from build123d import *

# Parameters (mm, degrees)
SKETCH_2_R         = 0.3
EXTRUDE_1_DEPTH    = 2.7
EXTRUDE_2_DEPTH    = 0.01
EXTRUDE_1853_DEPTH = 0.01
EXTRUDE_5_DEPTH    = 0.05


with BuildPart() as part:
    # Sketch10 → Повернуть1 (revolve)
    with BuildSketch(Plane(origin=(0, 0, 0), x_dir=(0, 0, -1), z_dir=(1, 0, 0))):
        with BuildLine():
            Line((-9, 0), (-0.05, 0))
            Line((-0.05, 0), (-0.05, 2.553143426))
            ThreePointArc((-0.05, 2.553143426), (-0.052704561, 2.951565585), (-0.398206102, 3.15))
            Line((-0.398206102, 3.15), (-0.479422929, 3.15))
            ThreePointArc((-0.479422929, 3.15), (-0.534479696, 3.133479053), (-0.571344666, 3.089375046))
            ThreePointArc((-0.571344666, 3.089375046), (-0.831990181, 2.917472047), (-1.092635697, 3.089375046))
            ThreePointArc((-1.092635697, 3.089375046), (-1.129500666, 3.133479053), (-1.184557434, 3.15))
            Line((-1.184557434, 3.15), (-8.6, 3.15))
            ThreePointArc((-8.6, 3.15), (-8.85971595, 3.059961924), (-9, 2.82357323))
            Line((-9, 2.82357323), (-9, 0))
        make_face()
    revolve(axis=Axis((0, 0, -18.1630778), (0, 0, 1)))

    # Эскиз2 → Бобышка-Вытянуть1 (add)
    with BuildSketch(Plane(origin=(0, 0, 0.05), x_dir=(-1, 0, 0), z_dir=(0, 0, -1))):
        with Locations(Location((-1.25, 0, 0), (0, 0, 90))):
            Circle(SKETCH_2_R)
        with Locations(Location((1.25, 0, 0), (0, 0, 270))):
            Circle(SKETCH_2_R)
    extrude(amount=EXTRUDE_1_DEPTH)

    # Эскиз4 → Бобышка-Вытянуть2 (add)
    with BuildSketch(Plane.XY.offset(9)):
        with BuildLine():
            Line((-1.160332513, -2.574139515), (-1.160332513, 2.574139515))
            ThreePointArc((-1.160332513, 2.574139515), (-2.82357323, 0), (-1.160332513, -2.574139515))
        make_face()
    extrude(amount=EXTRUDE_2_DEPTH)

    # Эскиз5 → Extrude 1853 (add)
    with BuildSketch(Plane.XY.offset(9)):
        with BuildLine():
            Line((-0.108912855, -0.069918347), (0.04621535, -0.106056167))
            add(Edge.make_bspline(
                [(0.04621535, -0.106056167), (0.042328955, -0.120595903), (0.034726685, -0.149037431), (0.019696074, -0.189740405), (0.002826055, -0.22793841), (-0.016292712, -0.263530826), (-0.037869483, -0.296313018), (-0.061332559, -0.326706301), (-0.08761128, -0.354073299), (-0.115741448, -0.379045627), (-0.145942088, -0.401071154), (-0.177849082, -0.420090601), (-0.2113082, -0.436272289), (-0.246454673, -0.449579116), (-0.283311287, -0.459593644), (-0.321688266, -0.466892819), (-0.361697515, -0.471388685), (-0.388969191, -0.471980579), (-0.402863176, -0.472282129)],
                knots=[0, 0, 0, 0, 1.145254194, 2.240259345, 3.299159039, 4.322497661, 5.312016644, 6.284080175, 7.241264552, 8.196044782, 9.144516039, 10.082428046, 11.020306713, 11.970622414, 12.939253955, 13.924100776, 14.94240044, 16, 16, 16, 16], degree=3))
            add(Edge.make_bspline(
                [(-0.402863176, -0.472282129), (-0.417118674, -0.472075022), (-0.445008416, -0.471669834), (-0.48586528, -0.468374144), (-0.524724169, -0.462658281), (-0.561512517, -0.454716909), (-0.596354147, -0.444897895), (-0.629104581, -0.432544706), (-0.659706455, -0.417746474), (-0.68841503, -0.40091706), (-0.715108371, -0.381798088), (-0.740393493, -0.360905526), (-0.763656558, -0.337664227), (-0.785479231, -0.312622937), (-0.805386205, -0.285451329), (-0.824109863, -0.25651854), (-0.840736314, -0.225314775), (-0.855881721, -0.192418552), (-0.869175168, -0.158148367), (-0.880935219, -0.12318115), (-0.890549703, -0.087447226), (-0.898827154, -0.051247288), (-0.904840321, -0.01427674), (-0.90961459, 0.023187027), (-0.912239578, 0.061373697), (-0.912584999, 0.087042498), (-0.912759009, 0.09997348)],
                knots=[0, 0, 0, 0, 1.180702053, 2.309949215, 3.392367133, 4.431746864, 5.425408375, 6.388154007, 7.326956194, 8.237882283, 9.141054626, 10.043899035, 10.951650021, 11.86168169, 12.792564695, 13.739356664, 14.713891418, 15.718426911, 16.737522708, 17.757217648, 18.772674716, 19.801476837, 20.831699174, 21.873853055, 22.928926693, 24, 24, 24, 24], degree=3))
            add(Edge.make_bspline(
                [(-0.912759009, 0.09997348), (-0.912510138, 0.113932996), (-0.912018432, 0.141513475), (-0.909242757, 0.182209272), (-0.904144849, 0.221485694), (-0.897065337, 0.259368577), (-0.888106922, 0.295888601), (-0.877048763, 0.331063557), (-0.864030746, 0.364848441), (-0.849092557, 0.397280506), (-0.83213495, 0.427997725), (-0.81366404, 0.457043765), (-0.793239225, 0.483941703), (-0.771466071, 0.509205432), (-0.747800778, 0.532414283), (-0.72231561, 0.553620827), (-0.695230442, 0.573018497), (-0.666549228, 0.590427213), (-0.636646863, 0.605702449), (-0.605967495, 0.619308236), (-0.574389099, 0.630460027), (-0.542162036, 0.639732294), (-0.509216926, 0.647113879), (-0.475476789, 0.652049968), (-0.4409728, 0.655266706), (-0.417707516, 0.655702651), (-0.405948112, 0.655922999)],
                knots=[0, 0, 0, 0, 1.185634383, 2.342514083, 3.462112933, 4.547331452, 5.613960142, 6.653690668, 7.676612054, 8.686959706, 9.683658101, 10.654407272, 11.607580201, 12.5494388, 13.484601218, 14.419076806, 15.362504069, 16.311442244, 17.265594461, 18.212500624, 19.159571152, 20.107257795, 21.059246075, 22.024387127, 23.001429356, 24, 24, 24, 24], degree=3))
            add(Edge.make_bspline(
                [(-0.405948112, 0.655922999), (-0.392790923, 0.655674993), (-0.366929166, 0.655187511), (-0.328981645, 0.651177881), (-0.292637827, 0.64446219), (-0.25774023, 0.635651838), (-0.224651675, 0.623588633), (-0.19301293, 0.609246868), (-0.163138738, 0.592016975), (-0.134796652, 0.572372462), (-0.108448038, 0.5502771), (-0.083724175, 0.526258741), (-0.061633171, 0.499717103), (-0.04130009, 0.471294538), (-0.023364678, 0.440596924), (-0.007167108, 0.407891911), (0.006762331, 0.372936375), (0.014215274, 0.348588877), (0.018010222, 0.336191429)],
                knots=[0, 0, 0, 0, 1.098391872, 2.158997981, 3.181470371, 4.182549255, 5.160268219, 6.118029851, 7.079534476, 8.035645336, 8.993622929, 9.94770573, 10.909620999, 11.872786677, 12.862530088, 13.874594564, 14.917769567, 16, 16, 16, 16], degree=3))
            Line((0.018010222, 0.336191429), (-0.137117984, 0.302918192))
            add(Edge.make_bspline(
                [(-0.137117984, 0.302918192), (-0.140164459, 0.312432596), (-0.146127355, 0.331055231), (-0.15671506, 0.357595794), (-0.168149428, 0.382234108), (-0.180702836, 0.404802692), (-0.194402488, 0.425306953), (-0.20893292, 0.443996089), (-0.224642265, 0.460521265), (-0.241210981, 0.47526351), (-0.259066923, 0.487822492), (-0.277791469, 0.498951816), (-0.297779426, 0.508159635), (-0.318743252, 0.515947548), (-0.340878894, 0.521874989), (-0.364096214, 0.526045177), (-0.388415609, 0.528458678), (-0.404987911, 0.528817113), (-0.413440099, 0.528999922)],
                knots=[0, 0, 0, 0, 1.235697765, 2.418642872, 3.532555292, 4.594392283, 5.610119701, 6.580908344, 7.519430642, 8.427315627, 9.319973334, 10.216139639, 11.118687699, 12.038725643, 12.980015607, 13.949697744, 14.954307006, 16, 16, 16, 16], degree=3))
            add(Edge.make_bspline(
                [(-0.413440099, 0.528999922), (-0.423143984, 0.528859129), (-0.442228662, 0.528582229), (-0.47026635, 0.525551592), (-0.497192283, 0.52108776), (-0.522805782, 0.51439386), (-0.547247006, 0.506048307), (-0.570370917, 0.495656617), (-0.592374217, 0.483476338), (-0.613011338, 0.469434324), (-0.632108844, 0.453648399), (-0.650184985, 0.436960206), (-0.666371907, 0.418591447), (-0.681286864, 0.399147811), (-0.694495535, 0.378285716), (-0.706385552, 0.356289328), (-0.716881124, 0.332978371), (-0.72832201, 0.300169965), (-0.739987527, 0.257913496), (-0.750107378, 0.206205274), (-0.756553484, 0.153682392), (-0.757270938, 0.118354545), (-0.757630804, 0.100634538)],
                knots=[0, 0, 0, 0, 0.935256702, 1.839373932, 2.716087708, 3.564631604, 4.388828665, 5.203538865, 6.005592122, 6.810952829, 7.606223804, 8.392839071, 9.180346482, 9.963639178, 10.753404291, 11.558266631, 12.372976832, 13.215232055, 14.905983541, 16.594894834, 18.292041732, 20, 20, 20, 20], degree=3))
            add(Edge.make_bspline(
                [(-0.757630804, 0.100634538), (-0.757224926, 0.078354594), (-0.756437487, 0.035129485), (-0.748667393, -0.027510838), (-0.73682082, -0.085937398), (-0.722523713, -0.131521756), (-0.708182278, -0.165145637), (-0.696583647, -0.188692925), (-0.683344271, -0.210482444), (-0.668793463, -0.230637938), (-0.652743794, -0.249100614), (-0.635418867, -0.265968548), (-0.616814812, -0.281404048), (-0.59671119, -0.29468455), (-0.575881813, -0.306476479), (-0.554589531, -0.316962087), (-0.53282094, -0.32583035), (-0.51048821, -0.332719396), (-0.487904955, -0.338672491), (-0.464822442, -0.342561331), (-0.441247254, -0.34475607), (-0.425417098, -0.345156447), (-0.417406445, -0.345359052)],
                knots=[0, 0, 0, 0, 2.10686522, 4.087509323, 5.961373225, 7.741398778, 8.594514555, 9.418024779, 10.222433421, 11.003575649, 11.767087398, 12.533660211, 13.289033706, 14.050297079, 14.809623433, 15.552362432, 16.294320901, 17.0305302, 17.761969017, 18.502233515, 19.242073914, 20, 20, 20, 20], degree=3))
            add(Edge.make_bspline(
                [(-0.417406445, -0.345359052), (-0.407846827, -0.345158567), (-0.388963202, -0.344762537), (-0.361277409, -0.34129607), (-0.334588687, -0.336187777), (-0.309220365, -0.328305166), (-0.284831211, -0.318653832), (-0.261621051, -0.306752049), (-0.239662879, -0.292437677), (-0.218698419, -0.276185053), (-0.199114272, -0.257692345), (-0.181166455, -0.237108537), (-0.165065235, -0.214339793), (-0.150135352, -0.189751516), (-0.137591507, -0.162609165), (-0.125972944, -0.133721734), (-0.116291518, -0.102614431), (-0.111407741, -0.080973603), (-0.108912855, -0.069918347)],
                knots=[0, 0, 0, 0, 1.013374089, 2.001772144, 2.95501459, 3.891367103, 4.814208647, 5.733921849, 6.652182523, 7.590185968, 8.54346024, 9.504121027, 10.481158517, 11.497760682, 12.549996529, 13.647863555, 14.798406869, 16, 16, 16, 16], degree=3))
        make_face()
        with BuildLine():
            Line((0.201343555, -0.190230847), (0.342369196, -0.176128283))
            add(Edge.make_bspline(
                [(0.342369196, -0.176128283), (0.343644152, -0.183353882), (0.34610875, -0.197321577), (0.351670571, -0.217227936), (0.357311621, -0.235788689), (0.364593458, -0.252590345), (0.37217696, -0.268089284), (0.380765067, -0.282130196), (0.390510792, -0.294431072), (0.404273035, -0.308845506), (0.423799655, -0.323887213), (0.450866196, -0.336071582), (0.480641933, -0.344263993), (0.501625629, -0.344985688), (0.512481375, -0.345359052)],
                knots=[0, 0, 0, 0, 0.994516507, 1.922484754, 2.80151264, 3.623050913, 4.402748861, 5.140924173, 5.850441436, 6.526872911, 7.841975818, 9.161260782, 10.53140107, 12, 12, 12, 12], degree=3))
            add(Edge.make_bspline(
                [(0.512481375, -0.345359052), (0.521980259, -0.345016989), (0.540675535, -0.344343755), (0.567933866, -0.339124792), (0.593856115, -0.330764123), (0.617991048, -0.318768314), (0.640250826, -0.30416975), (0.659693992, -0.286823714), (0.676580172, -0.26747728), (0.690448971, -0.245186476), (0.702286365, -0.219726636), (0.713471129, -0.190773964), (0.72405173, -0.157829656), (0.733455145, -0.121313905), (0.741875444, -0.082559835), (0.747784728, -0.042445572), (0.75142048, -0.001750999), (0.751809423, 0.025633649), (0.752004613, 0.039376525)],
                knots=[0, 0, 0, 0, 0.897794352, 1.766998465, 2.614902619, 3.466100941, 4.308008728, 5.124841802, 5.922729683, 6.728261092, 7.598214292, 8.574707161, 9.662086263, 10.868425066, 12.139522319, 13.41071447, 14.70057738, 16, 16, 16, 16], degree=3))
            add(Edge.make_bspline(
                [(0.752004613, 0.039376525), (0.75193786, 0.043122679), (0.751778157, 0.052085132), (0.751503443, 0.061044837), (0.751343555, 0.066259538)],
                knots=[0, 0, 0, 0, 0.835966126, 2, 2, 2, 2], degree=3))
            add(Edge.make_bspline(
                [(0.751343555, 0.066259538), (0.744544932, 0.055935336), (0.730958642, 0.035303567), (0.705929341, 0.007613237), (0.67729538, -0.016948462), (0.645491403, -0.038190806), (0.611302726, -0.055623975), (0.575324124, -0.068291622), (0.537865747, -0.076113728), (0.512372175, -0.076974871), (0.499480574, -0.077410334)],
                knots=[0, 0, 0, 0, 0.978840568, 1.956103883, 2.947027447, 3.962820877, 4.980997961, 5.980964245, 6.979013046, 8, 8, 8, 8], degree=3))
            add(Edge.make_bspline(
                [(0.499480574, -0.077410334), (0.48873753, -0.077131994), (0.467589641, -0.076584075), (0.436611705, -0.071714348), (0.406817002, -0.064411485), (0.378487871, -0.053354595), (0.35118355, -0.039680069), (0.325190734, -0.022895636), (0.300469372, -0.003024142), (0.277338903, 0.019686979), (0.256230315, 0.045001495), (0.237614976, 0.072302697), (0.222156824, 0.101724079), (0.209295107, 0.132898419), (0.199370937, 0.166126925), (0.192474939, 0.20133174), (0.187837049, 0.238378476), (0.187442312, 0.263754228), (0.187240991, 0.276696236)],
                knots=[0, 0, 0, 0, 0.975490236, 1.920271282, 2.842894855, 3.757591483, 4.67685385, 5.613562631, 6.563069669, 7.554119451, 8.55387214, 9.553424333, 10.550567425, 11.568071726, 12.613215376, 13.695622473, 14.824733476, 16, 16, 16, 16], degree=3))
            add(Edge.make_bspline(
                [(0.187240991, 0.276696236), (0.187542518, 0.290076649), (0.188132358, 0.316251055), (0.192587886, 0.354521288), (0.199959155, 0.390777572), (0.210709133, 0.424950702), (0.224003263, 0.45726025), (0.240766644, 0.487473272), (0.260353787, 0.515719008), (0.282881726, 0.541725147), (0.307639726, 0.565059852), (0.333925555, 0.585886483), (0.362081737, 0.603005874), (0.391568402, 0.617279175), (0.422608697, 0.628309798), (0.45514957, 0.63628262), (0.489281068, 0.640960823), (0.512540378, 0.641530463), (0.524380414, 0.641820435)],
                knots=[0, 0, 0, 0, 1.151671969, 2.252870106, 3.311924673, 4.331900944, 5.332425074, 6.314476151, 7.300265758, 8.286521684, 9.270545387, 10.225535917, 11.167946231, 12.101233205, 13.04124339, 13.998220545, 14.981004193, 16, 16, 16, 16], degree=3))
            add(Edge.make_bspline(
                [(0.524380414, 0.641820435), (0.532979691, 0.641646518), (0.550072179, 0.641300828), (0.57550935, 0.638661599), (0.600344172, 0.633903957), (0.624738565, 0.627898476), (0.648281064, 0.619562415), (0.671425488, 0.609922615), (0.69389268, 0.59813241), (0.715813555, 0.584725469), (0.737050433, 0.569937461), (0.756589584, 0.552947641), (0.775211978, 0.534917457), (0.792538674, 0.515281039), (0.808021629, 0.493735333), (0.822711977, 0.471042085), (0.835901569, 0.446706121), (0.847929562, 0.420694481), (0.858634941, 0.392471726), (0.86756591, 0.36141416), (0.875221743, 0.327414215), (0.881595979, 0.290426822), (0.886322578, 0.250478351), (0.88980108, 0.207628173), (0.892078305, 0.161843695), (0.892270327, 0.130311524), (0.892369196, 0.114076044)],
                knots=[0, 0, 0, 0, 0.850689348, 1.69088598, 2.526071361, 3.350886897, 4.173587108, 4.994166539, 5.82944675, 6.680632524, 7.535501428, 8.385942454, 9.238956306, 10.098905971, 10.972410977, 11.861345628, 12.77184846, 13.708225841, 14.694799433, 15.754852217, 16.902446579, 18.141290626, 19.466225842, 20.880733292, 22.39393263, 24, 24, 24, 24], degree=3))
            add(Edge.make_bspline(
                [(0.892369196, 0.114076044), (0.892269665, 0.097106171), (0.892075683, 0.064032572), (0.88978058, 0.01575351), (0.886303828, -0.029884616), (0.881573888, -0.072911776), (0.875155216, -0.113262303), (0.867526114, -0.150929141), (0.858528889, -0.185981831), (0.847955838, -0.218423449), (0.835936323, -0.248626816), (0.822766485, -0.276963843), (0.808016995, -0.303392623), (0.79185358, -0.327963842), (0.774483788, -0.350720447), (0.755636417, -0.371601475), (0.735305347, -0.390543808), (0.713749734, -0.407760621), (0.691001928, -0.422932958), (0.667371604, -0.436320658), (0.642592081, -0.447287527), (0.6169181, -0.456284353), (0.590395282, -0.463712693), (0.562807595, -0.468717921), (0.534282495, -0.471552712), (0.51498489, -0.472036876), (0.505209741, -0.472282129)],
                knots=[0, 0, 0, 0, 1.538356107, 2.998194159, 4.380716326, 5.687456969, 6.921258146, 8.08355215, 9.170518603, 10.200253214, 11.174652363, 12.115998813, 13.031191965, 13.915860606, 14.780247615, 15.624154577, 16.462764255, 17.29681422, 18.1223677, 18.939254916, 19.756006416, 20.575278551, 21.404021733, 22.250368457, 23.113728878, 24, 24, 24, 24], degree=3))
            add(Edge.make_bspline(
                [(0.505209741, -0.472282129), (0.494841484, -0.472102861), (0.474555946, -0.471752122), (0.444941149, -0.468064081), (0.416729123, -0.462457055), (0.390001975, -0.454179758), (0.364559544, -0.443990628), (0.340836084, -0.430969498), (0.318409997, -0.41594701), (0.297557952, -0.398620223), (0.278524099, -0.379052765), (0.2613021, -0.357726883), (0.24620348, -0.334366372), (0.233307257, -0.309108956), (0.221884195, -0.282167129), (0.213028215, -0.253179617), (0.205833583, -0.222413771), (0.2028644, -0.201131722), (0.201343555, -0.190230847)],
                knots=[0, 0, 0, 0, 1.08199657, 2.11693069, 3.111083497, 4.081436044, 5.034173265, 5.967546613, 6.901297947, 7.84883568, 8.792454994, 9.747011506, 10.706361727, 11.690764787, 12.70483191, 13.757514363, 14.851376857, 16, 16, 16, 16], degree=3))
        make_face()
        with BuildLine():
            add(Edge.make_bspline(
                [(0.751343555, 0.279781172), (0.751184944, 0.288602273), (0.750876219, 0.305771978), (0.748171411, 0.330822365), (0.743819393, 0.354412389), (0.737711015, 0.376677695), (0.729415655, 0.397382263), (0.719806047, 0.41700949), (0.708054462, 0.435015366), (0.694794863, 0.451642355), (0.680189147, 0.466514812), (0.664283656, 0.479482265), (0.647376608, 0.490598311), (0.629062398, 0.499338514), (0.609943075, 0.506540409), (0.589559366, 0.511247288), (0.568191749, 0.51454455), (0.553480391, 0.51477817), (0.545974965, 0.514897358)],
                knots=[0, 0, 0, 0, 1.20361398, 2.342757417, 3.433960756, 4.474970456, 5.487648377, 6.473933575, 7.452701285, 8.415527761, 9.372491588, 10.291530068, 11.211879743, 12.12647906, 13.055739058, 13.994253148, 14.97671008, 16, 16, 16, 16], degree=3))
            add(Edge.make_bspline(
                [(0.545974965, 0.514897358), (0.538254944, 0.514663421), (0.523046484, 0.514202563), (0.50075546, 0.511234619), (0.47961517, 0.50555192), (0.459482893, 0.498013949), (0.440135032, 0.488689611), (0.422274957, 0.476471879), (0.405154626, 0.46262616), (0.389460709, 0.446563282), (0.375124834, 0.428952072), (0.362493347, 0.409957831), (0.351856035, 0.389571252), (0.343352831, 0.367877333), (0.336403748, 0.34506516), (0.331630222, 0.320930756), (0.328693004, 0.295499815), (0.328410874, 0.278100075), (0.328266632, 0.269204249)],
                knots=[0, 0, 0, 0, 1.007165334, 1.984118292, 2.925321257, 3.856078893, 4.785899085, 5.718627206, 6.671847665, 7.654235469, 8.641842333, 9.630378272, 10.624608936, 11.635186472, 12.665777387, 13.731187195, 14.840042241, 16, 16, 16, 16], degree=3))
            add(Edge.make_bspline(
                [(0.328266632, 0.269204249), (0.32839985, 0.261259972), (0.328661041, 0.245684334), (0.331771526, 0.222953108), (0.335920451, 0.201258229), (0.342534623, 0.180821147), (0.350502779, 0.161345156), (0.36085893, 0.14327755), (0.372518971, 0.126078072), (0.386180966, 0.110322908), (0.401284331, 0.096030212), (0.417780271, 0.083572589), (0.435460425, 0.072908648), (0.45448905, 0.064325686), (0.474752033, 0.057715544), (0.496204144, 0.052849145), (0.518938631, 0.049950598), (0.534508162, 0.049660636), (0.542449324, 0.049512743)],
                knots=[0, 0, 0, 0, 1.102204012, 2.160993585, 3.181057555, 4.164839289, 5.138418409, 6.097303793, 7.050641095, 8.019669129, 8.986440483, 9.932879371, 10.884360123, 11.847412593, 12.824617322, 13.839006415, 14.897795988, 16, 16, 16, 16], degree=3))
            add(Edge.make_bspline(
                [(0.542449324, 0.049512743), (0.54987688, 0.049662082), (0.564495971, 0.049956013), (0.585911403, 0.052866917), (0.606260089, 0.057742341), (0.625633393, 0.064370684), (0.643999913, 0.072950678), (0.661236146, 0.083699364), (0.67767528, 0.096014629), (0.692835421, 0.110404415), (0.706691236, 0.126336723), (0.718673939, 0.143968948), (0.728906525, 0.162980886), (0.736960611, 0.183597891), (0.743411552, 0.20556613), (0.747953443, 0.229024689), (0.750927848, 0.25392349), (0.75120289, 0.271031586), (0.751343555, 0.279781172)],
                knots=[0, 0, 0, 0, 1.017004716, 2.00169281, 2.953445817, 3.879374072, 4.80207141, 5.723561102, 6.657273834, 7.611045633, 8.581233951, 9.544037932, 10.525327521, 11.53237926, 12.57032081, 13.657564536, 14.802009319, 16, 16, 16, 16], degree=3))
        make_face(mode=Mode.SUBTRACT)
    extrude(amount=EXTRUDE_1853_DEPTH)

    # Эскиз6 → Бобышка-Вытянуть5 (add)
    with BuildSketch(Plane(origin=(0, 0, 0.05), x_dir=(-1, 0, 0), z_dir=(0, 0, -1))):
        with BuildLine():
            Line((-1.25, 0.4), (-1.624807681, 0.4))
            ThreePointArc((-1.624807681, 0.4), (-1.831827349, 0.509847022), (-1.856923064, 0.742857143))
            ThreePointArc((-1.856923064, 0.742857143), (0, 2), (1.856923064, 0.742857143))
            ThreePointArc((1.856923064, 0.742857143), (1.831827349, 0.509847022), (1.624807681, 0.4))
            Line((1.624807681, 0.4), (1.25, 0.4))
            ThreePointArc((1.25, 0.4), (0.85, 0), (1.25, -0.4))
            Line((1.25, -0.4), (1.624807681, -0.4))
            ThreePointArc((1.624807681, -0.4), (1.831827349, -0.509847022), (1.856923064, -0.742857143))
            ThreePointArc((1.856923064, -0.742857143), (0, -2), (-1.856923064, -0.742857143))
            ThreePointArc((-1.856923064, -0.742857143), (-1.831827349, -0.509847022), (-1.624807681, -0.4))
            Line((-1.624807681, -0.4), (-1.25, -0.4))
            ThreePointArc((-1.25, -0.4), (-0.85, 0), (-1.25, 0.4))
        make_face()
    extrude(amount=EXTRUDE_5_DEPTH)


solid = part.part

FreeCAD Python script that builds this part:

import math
import FreeCAD as App
import Part
import Sketcher
from FreeCAD import Vector
Q = App.Units.Quantity

doc = App.newDocument("Part")
body = doc.addObject("PartDesign::Body", "Body")

# Sketch on YZ plane
sketch1 = body.newObject("Sketcher::SketchObject", "Sketch")
sketch1.AttachmentSupport = (doc.getObject("YZ_Plane"), [""])
sketch1.MapMode = "FlatFace"
sketch1.addGeometry([
    Part.LineSegment(Vector(0, 9, 0), Vector(0, 0.05, 0)),  # 0
    Part.LineSegment(Vector(0, 0.05, 0), Vector(2.55, 0.05, 0)),  # 1
    Part.ArcOfCircle(Part.Circle(Vector(2.75, 0.4, 0), Vector(0, 0, 1), 0.4), math.radians(-119), math.radians(0)),  # 2
    Part.LineSegment(Vector(3.15, 0.4, 0), Vector(3.15, 0.48, 0)),  # 3
    Part.ArcOfCircle(Part.Circle(Vector(3.05, 0.48, 0), Vector(0, 0, 1), 0.1), math.radians(0), math.radians(67)),  # 4
    Part.ArcOfCircle(Part.Circle(Vector(3.2, 0.83, 0), Vector(0, 0, 1), 0.28), math.radians(113), math.radians(247)),  # 5
    Part.ArcOfCircle(Part.Circle(Vector(3.05, 1.18, 0), Vector(0, 0, 1), 0.1), math.radians(-67), math.radians(0)),  # 6
    Part.LineSegment(Vector(3.15, 1.18, 0), Vector(3.15, 8.6, 0)),  # 7
    Part.ArcOfCircle(Part.Circle(Vector(2.75, 8.61, 0), Vector(0, 0, 1), 0.4), math.radians(-1), math.radians(79)),  # 8
    Part.LineSegment(Vector(2.82, 9, 0), Vector(0, 9, 0)),  # 9
], False)
sketch1.addConstraint([
    Sketcher.Constraint("Coincident", 0, 2, 1, 1),
    Sketcher.Constraint("Coincident", 1, 2, 2, 1),
    Sketcher.Constraint("Tangent", 2, 2, 3, 1),
    Sketcher.Constraint("Tangent", 3, 2, 4, 1),
    Sketcher.Constraint("Tangent", 4, 2, 5, 2),
    Sketcher.Constraint("Tangent", 5, 1, 6, 1),
    Sketcher.Constraint("Tangent", 6, 2, 7, 1),
    Sketcher.Constraint("Coincident", 7, 2, 8, 1),
    Sketcher.Constraint("Coincident", 8, 2, 9, 1),
    Sketcher.Constraint("Coincident", 9, 2, 0, 1),
    Sketcher.Constraint("Vertical", 0),
    Sketcher.Constraint("Horizontal", 1),
    Sketcher.Constraint("Vertical", 3),
    Sketcher.Constraint("Vertical", 7),
    Sketcher.Constraint("Horizontal", 9),
    Sketcher.Constraint("Equal", 4, 6),
    Sketcher.Constraint("Equal", 2, 8),
    Sketcher.Constraint("PointOnObject", 0, 2, -2),
    Sketcher.Constraint("Vertical", 4, 3, 6, 3),
    Sketcher.Constraint("Radius", 2, Q("0.4 mm")),
    Sketcher.Constraint("Radius", 4, Q("0.1 mm")),
    Sketcher.Constraint("DistanceY", -1, 1, 8, 2, Q("9 mm")),
    Sketcher.Constraint("DistanceY", 0, 2, 0, 1, Q("8.95 mm")),
    Sketcher.Constraint("DistanceY", -1, 1, 7, 2, Q("8.6 mm")),
    Sketcher.Constraint("DistanceX", -1, 1, 2, 3, Q("2.75 mm")),
    Sketcher.Constraint("Radius", 5, Q("0.283552 mm")),
    Sketcher.Constraint("DistanceX", 8, 2, 5, 1, Q("0.265802 mm")),
    Sketcher.Constraint("DistanceX", 1, 1, 1, 2, Q("2.553143 mm")),
    Sketcher.Constraint("DistanceX", 9, 2, 9, 1, Q("2.823573 mm")),
    Sketcher.Constraint("DistanceY", 3, 1, 3, 2, Q("0.081217 mm")),
])
revolution = body.newObject("PartDesign::Revolution", "Revolution")
revolution.Profile = sketch1
revolution.ReferenceAxis = (sketch1, ["V_Axis"])
revolution.Angle = 360

# Sketch on XY plane
sketch2 = body.newObject("Sketcher::SketchObject", "Sketch001")
sketch2.AttachmentSupport = (doc.getObject("XY_Plane"), [""])
sketch2.MapMode = "FlatFace"
sketch2.AttachmentOffset = App.Placement(Vector(0, 0, 0.05), App.Rotation())
sketch2.addGeometry([
    Part.Circle(Vector(1.25, 0, 0), Vector(0, 0, 1), 0.3),
    Part.Circle(Vector(-1.25, 0, 0), Vector(0, 0, 1), 0.3),
], False)
sketch2.addConstraint([
    Sketcher.Constraint("Equal", 0, 1),
    Sketcher.Constraint("Symmetric", 0, 3, 1, 3, -1, 1),
    Sketcher.Constraint("PointOnObject", 0, 3, -1),
    Sketcher.Constraint("Diameter", 0, Q("0.6 mm")),
    Sketcher.Constraint("DistanceX", 1, 3, 0, 3, Q("2.5 mm")),
])
pad1 = body.newObject("PartDesign::Pad", "Pad")
pad1.Profile = sketch2
pad1.Length = 2.7
pad1.Reversed = True

# Sketch on XY plane
sketch3 = body.newObject("Sketcher::SketchObject", "Sketch002")
sketch3.AttachmentSupport = (doc.getObject("XY_Plane"), [""])
sketch3.MapMode = "FlatFace"
sketch3.AttachmentOffset = App.Placement(Vector(0, 0, 9), App.Rotation())
sketch3.addGeometry([
    Part.LineSegment(Vector(-1.2, -2.6, 0), Vector(-1.2, 2.6, 0)),
    Part.ArcOfCircle(Part.Circle(Vector(0, 0, 0), Vector(0, 0, 1), 2.8), math.radians(114), math.radians(246)),
], False)
sketch3.addConstraint([
    Sketcher.Constraint("Coincident", 0, 1, 1, 2),
    Sketcher.Constraint("Coincident", 1, 1, 0, 2),
    Sketcher.Constraint("Vertical", 0),
    Sketcher.Constraint("Coincident", 1, 3, -1, 1),
    Sketcher.Constraint("Radius", 1, Q("2.823573 mm")),
    Sketcher.Constraint("DistanceY", 0, 1, 0, 2, Q("5.148279 mm")),
])
pad2 = body.newObject("PartDesign::Pad", "Pad001")
pad2.Profile = sketch3
pad2.Length = 0.01

# Sketch on XY plane
sketch4 = body.newObject("Sketcher::SketchObject", "Sketch003")
sketch4.AttachmentSupport = (doc.getObject("XY_Plane"), [""])
sketch4.MapMode = "FlatFace"
sketch4.AttachmentOffset = App.Placement(Vector(0, 0, 9), App.Rotation())
sketch4.addGeometry([
    Part.LineSegment(Vector(0.046215, -0.106056, 0), Vector(-0.108913, -0.069918, 0)),  # 0
    Part.BSplineCurve([Vector(-0.417406, -0.345359, 0), Vector(-0.407847, -0.345159, 0), Vector(-0.388963, -0.344763, 0), Vector(-0.361277, -0.341296, 0), Vector(-0.334589, -0.336188, 0), Vector(-0.30922, -0.328305, 0), Vector(-0.284831, -0.318654, 0), Vector(-0.261621, -0.306752, 0), Vector(-0.239663, -0.292438, 0), Vector(-0.218698, -0.276185, 0), Vector(-0.199114, -0.257692, 0), Vector(-0.181166, -0.237109, 0), Vector(-0.165065, -0.21434, 0), Vector(-0.150135, -0.189752, 0), Vector(-0.137592, -0.162609, 0), Vector(-0.125973, -0.133722, 0), Vector(-0.116292, -0.102614, 0), Vector(-0.111408, -0.080974, 0), Vector(-0.108913, -0.069918, 0)], [4, 1, 1, 1, 1, 1, 1, 1, 1, 1, 1, 1, 1, 1, 1, 1, 4], [0, 1.013374089, 2.001772144, 2.95501459, 3.891367103, 4.814208647, 5.733921849, 6.652182523, 7.590185968, 8.54346024, 9.504121027, 10.481158517, 11.497760682, 12.549996529, 13.647863555, 14.798406869, 16], False, 3, [1, 1, 1, 1, 1, 1, 1, 1, 1, 1, 1, 1, 1, 1, 1, 1, 1, 1, 1], False),  # 1
    Part.BSplineCurve([Vector(-0.757631, 0.100635, 0), Vector(-0.757225, 0.078355, 0), Vector(-0.756437, 0.035129, 0), Vector(-0.748667, -0.027511, 0), Vector(-0.736821, -0.085937, 0), Vector(-0.722524, -0.131522, 0), Vector(-0.708182, -0.165146, 0), Vector(-0.696584, -0.188693, 0), Vector(-0.683344, -0.210482, 0), Vector(-0.668793, -0.230638, 0), Vector(-0.652744, -0.249101, 0), Vector(-0.635419, -0.265969, 0), Vector(-0.616815, -0.281404, 0), Vector(-0.596711, -0.294685, 0), Vector(-0.575882, -0.306476, 0), Vector(-0.55459, -0.316962, 0), Vector(-0.532821, -0.32583, 0), Vector(-0.510488, -0.332719, 0), Vector(-0.487905, -0.338672, 0), Vector(-0.464822, -0.342561, 0), Vector(-0.441247, -0.344756, 0), Vector(-0.425417, -0.345156, 0), Vector(-0.417406, -0.345359, 0)], [4, 1, 1, 1, 1, 1, 1, 1, 1, 1, 1, 1, 1, 1, 1, 1, 1, 1, 1, 1, 4], [0, 2.10686522, 4.087509323, 5.961373225, 7.741398778, 8.594514555, 9.418024779, 10.222433421, 11.003575649, 11.767087398, 12.533660211, 13.289033706, 14.050297079, 14.809623433, 15.552362432, 16.294320901, 17.0305302, 17.761969017, 18.502233515, 19.242073914, 20], False, 3, [1, 1, 1, 1, 1, 1, 1, 1, 1, 1, 1, 1, 1, 1, 1, 1, 1, 1, 1, 1, 1, 1, 1], False),  # 2
    Part.BSplineCurve([Vector(-0.41344, 0.529, 0), Vector(-0.423144, 0.528859, 0), Vector(-0.442229, 0.528582, 0), Vector(-0.470266, 0.525552, 0), Vector(-0.497192, 0.521088, 0), Vector(-0.522806, 0.514394, 0), Vector(-0.547247, 0.506048, 0), Vector(-0.570371, 0.495657, 0), Vector(-0.592374, 0.483476, 0), Vector(-0.613011, 0.469434, 0), Vector(-0.632109, 0.453648, 0), Vector(-0.650185, 0.43696, 0), Vector(-0.666372, 0.418591, 0), Vector(-0.681287, 0.399148, 0), Vector(-0.694496, 0.378286, 0), Vector(-0.706386, 0.356289, 0), Vector(-0.716881, 0.332978, 0), Vector(-0.728322, 0.30017, 0), Vector(-0.739988, 0.257913, 0), Vector(-0.750107, 0.206205, 0), Vector(-0.756553, 0.153682, 0), Vector(-0.757271, 0.118355, 0), Vector(-0.757631, 0.100635, 0)], [4, 1, 1, 1, 1, 1, 1, 1, 1, 1, 1, 1, 1, 1, 1, 1, 1, 1, 1, 1, 4], [0, 0.935256702, 1.839373932, 2.716087708, 3.564631604, 4.388828665, 5.203538865, 6.005592122, 6.810952829, 7.606223804, 8.392839071, 9.180346482, 9.963639178, 10.753404291, 11.558266631, 12.372976832, 13.215232055, 14.905983541, 16.594894834, 18.292041732, 20], False, 3, [1, 1, 1, 1, 1, 1, 1, 1, 1, 1, 1, 1, 1, 1, 1, 1, 1, 1, 1, 1, 1, 1, 1], False),  # 3
    Part.BSplineCurve([Vector(-0.137118, 0.302918, 0), Vector(-0.140164, 0.312433, 0), Vector(-0.146127, 0.331055, 0), Vector(-0.156715, 0.357596, 0), Vector(-0.168149, 0.382234, 0), Vector(-0.180703, 0.404803, 0), Vector(-0.194402, 0.425307, 0), Vector(-0.208933, 0.443996, 0), Vector(-0.224642, 0.460521, 0), Vector(-0.241211, 0.475264, 0), Vector(-0.259067, 0.487822, 0), Vector(-0.277791, 0.498952, 0), Vector(-0.297779, 0.50816, 0), Vector(-0.318743, 0.515948, 0), Vector(-0.340879, 0.521875, 0), Vector(-0.364096, 0.526045, 0), Vector(-0.388416, 0.528459, 0), Vector(-0.404988, 0.528817, 0), Vector(-0.41344, 0.529, 0)], [4, 1, 1, 1, 1, 1, 1, 1, 1, 1, 1, 1, 1, 1, 1, 1, 4], [0, 1.235697765, 2.418642872, 3.532555292, 4.594392283, 5.610119701, 6.580908344, 7.519430642, 8.427315627, 9.319973334, 10.216139639, 11.118687699, 12.038725643, 12.980015607, 13.949697744, 14.954307006, 16], False, 3, [1, 1, 1, 1, 1, 1, 1, 1, 1, 1, 1, 1, 1, 1, 1, 1, 1, 1, 1], False),  # 4
    Part.LineSegment(Vector(-0.137118, 0.302918, 0), Vector(0.01801, 0.336191, 0)),  # 5
    Part.BSplineCurve([Vector(-0.405948, 0.655923, 0), Vector(-0.392791, 0.655675, 0), Vector(-0.366929, 0.655188, 0), Vector(-0.328982, 0.651178, 0), Vector(-0.292638, 0.644462, 0), Vector(-0.25774, 0.635652, 0), Vector(-0.224652, 0.623589, 0), Vector(-0.193013, 0.609247, 0), Vector(-0.163139, 0.592017, 0), Vector(-0.134797, 0.572372, 0), Vector(-0.108448, 0.550277, 0), Vector(-0.083724, 0.526259, 0), Vector(-0.061633, 0.499717, 0), Vector(-0.0413, 0.471295, 0), Vector(-0.023365, 0.440597, 0), Vector(-0.007167, 0.407892, 0), Vector(0.006762, 0.372936, 0), Vector(0.014215, 0.348589, 0), Vector(0.01801, 0.336191, 0)], [4, 1, 1, 1, 1, 1, 1, 1, 1, 1, 1, 1, 1, 1, 1, 1, 4], [0, 1.098391872, 2.158997981, 3.181470371, 4.182549255, 5.160268219, 6.118029851, 7.079534476, 8.035645336, 8.993622929, 9.94770573, 10.909620999, 11.872786677, 12.862530088, 13.874594564, 14.917769567, 16], False, 3, [1, 1, 1, 1, 1, 1, 1, 1, 1, 1, 1, 1, 1, 1, 1, 1, 1, 1, 1], False),  # 6
    Part.BSplineCurve([Vector(-0.912759, 0.099973, 0), Vector(-0.91251, 0.113933, 0), Vector(-0.912018, 0.141513, 0), Vector(-0.909243, 0.182209, 0), Vector(-0.904145, 0.221486, 0), Vector(-0.897065, 0.259369, 0), Vector(-0.888107, 0.295889, 0), Vector(-0.877049, 0.331064, 0), Vector(-0.864031, 0.364848, 0), Vector(-0.849093, 0.397281, 0), Vector(-0.832135, 0.427998, 0), Vector(-0.813664, 0.457044, 0), Vector(-0.793239, 0.483942, 0), Vector(-0.771466, 0.509205, 0), Vector(-0.747801, 0.532414, 0), Vector(-0.722316, 0.553621, 0), Vector(-0.69523, 0.573018, 0), Vector(-0.666549, 0.590427, 0), Vector(-0.636647, 0.605702, 0), Vector(-0.605967, 0.619308, 0), Vector(-0.574389, 0.63046, 0), Vector(-0.542162, 0.639732, 0), Vector(-0.509217, 0.647114, 0), Vector(-0.475477, 0.65205, 0), Vector(-0.440973, 0.655267, 0), Vector(-0.417708, 0.655703, 0), Vector(-0.405948, 0.655923, 0)], [4, 1, 1, 1, 1, 1, 1, 1, 1, 1, 1, 1, 1, 1, 1, 1, 1, 1, 1, 1, 1, 1, 1, 1, 4], [0, 1.185634383, 2.342514083, 3.462112933, 4.547331452, 5.613960142, 6.653690668, 7.676612054, 8.686959706, 9.683658101, 10.654407272, 11.607580201, 12.5494388, 13.484601218, 14.419076806, 15.362504069, 16.311442244, 17.265594461, 18.212500624, 19.159571152, 20.107257795, 21.059246075, 22.024387127, 23.001429356, 24], False, 3, [1, 1, 1, 1, 1, 1, 1, 1, 1, 1, 1, 1, 1, 1, 1, 1, 1, 1, 1, 1, 1, 1, 1, 1, 1, 1, 1], False),  # 7
    Part.BSplineCurve([Vector(-0.402863, -0.472282, 0), Vector(-0.417119, -0.472075, 0), Vector(-0.445008, -0.47167, 0), Vector(-0.485865, -0.468374, 0), Vector(-0.524724, -0.462658, 0), Vector(-0.561513, -0.454717, 0), Vector(-0.596354, -0.444898, 0), Vector(-0.629105, -0.432545, 0), Vector(-0.659706, -0.417746, 0), Vector(-0.688415, -0.400917, 0), Vector(-0.715108, -0.381798, 0), Vector(-0.740393, -0.360906, 0), Vector(-0.763657, -0.337664, 0), Vector(-0.785479, -0.312623, 0), Vector(-0.805386, -0.285451, 0), Vector(-0.82411, -0.256519, 0), Vector(-0.840736, -0.225315, 0), Vector(-0.855882, -0.192419, 0), Vector(-0.869175, -0.158148, 0), Vector(-0.880935, -0.123181, 0), Vector(-0.89055, -0.087447, 0), Vector(-0.898827, -0.051247, 0), Vector(-0.90484, -0.014277, 0), Vector(-0.909615, 0.023187, 0), Vector(-0.91224, 0.061374, 0), Vector(-0.912585, 0.087042, 0), Vector(-0.912759, 0.099973, 0)], [4, 1, 1, 1, 1, 1, 1, 1, 1, 1, 1, 1, 1, 1, 1, 1, 1, 1, 1, 1, 1, 1, 1, 1, 4], [0, 1.180702053, 2.309949215, 3.392367133, 4.431746864, 5.425408375, 6.388154007, 7.326956194, 8.237882283, 9.141054626, 10.043899035, 10.951650021, 11.86168169, 12.792564695, 13.739356664, 14.713891418, 15.718426911, 16.737522708, 17.757217648, 18.772674716, 19.801476837, 20.831699174, 21.873853055, 22.928926693, 24], False, 3, [1, 1, 1, 1, 1, 1, 1, 1, 1, 1, 1, 1, 1, 1, 1, 1, 1, 1, 1, 1, 1, 1, 1, 1, 1, 1, 1], False),  # 8
    Part.BSplineCurve([Vector(0.046215, -0.106056, 0), Vector(0.042329, -0.120596, 0), Vector(0.034727, -0.149037, 0), Vector(0.019696, -0.18974, 0), Vector(0.002826, -0.227938, 0), Vector(-0.016293, -0.263531, 0), Vector(-0.037869, -0.296313, 0), Vector(-0.061333, -0.326706, 0), Vector(-0.087611, -0.354073, 0), Vector(-0.115741, -0.379046, 0), Vector(-0.145942, -0.401071, 0), Vector(-0.177849, -0.420091, 0), Vector(-0.211308, -0.436272, 0), Vector(-0.246455, -0.449579, 0), Vector(-0.283311, -0.459594, 0), Vector(-0.321688, -0.466893, 0), Vector(-0.361698, -0.471389, 0), Vector(-0.388969, -0.471981, 0), Vector(-0.402863, -0.472282, 0)], [4, 1, 1, 1, 1, 1, 1, 1, 1, 1, 1, 1, 1, 1, 1, 1, 4], [0, 1.145254194, 2.240259345, 3.299159039, 4.322497661, 5.312016644, 6.284080175, 7.241264552, 8.196044782, 9.144516039, 10.082428046, 11.020306713, 11.970622414, 12.939253955, 13.924100776, 14.94240044, 16], False, 3, [1, 1, 1, 1, 1, 1, 1, 1, 1, 1, 1, 1, 1, 1, 1, 1, 1, 1, 1], False),  # 9
    Part.LineSegment(Vector(0.342369, -0.176128, 0), Vector(0.201344, -0.190231, 0)),  # 10
    Part.BSplineCurve([Vector(0.50521, -0.472282, 0), Vector(0.494841, -0.472103, 0), Vector(0.474556, -0.471752, 0), Vector(0.444941, -0.468064, 0), Vector(0.416729, -0.462457, 0), Vector(0.390002, -0.45418, 0), Vector(0.36456, -0.443991, 0), Vector(0.340836, -0.430969, 0), Vector(0.31841, -0.415947, 0), Vector(0.297558, -0.39862, 0), Vector(0.278524, -0.379053, 0), Vector(0.261302, -0.357727, 0), Vector(0.246203, -0.334366, 0), Vector(0.233307, -0.309109, 0), Vector(0.221884, -0.282167, 0), Vector(0.213028, -0.25318, 0), Vector(0.205834, -0.222414, 0), Vector(0.202864, -0.201132, 0), Vector(0.201344, -0.190231, 0)], [4, 1, 1, 1, 1, 1, 1, 1, 1, 1, 1, 1, 1, 1, 1, 1, 4], [0, 1.08199657, 2.11693069, 3.111083497, 4.081436044, 5.034173265, 5.967546613, 6.901297947, 7.84883568, 8.792454994, 9.747011506, 10.706361727, 11.690764787, 12.70483191, 13.757514363, 14.851376857, 16], False, 3, [1, 1, 1, 1, 1, 1, 1, 1, 1, 1, 1, 1, 1, 1, 1, 1, 1, 1, 1], False),  # 11
    Part.BSplineCurve([Vector(0.892369, 0.114076, 0), Vector(0.89227, 0.097106, 0), Vector(0.892076, 0.064033, 0), Vector(0.889781, 0.015754, 0), Vector(0.886304, -0.029885, 0), Vector(0.881574, -0.072912, 0), Vector(0.875155, -0.113262, 0), Vector(0.867526, -0.150929, 0), Vector(0.858529, -0.185982, 0), Vector(0.847956, -0.218423, 0), Vector(0.835936, -0.248627, 0), Vector(0.822766, -0.276964, 0), Vector(0.808017, -0.303393, 0), Vector(0.791854, -0.327964, 0), Vector(0.774484, -0.35072, 0), Vector(0.755636, -0.371601, 0), Vector(0.735305, -0.390544, 0), Vector(0.71375, -0.407761, 0), Vector(0.691002, -0.422933, 0), Vector(0.667372, -0.436321, 0), Vector(0.642592, -0.447288, 0), Vector(0.616918, -0.456284, 0), Vector(0.590395, -0.463713, 0), Vector(0.562808, -0.468718, 0), Vector(0.534282, -0.471553, 0), Vector(0.514985, -0.472037, 0), Vector(0.50521, -0.472282, 0)], [4, 1, 1, 1, 1, 1, 1, 1, 1, 1, 1, 1, 1, 1, 1, 1, 1, 1, 1, 1, 1, 1, 1, 1, 4], [0, 1.538356107, 2.998194159, 4.380716326, 5.687456969, 6.921258146, 8.08355215, 9.170518603, 10.200253214, 11.174652363, 12.115998813, 13.031191965, 13.915860606, 14.780247615, 15.624154577, 16.462764255, 17.29681422, 18.1223677, 18.939254916, 19.756006416, 20.575278551, 21.404021733, 22.250368457, 23.113728878, 24], False, 3, [1, 1, 1, 1, 1, 1, 1, 1, 1, 1, 1, 1, 1, 1, 1, 1, 1, 1, 1, 1, 1, 1, 1, 1, 1, 1, 1], False),  # 12
    Part.BSplineCurve([Vector(0.52438, 0.64182, 0), Vector(0.53298, 0.641647, 0), Vector(0.550072, 0.641301, 0), Vector(0.575509, 0.638662, 0), Vector(0.600344, 0.633904, 0), Vector(0.624739, 0.627898, 0), Vector(0.648281, 0.619562, 0), Vector(0.671425, 0.609923, 0), Vector(0.693893, 0.598132, 0), Vector(0.715814, 0.584725, 0), Vector(0.73705, 0.569937, 0), Vector(0.75659, 0.552948, 0), Vector(0.775212, 0.534917, 0), Vector(0.792539, 0.515281, 0), Vector(0.808022, 0.493735, 0), Vector(0.822712, 0.471042, 0), Vector(0.835902, 0.446706, 0), Vector(0.84793, 0.420694, 0), Vector(0.858635, 0.392472, 0), Vector(0.867566, 0.361414, 0), Vector(0.875222, 0.327414, 0), Vector(0.881596, 0.290427, 0), Vector(0.886323, 0.250478, 0), Vector(0.889801, 0.207628, 0), Vector(0.892078, 0.161844, 0), Vector(0.89227, 0.130312, 0), Vector(0.892369, 0.114076, 0)], [4, 1, 1, 1, 1, 1, 1, 1, 1, 1, 1, 1, 1, 1, 1, 1, 1, 1, 1, 1, 1, 1, 1, 1, 4], [0, 0.850689348, 1.69088598, 2.526071361, 3.350886897, 4.173587108, 4.994166539, 5.82944675, 6.680632524, 7.535501428, 8.385942454, 9.238956306, 10.098905971, 10.972410977, 11.861345628, 12.77184846, 13.708225841, 14.694799433, 15.754852217, 16.902446579, 18.141290626, 19.466225842, 20.880733292, 22.39393263, 24], False, 3, [1, 1, 1, 1, 1, 1, 1, 1, 1, 1, 1, 1, 1, 1, 1, 1, 1, 1, 1, 1, 1, 1, 1, 1, 1, 1, 1], False),  # 13
    Part.BSplineCurve([Vector(0.187241, 0.276696, 0), Vector(0.187543, 0.290077, 0), Vector(0.188132, 0.316251, 0), Vector(0.192588, 0.354521, 0), Vector(0.199959, 0.390778, 0), Vector(0.210709, 0.424951, 0), Vector(0.224003, 0.45726, 0), Vector(0.240767, 0.487473, 0), Vector(0.260354, 0.515719, 0), Vector(0.282882, 0.541725, 0), Vector(0.30764, 0.56506, 0), Vector(0.333926, 0.585886, 0), Vector(0.362082, 0.603006, 0), Vector(0.391568, 0.617279, 0), Vector(0.422609, 0.62831, 0), Vector(0.45515, 0.636283, 0), Vector(0.489281, 0.640961, 0), Vector(0.51254, 0.64153, 0), Vector(0.52438, 0.64182, 0)], [4, 1, 1, 1, 1, 1, 1, 1, 1, 1, 1, 1, 1, 1, 1, 1, 4], [0, 1.151671969, 2.252870106, 3.311924673, 4.331900944, 5.332425074, 6.314476151, 7.300265758, 8.286521684, 9.270545387, 10.225535917, 11.167946231, 12.101233205, 13.04124339, 13.998220545, 14.981004193, 16], False, 3, [1, 1, 1, 1, 1, 1, 1, 1, 1, 1, 1, 1, 1, 1, 1, 1, 1, 1, 1], False),  # 14
    Part.BSplineCurve([Vector(0.499481, -0.07741, 0), Vector(0.488738, -0.077132, 0), Vector(0.46759, -0.076584, 0), Vector(0.436612, -0.071714, 0), Vector(0.406817, -0.064411, 0), Vector(0.378488, -0.053355, 0), Vector(0.351184, -0.03968, 0), Vector(0.325191, -0.022896, 0), Vector(0.300469, -0.003024, 0), Vector(0.277339, 0.019687, 0), Vector(0.25623, 0.045001, 0), Vector(0.237615, 0.072303, 0), Vector(0.222157, 0.101724, 0), Vector(0.209295, 0.132898, 0), Vector(0.199371, 0.166127, 0), Vector(0.192475, 0.201332, 0), Vector(0.187837, 0.238378, 0), Vector(0.187442, 0.263754, 0), Vector(0.187241, 0.276696, 0)], [4, 1, 1, 1, 1, 1, 1, 1, 1, 1, 1, 1, 1, 1, 1, 1, 4], [0, 0.975490236, 1.920271282, 2.842894855, 3.757591483, 4.67685385, 5.613562631, 6.563069669, 7.554119451, 8.55387214, 9.553424333, 10.550567425, 11.568071726, 12.613215376, 13.695622473, 14.824733476, 16], False, 3, [1, 1, 1, 1, 1, 1, 1, 1, 1, 1, 1, 1, 1, 1, 1, 1, 1, 1, 1], False),  # 15
    Part.BSplineCurve([Vector(0.751344, 0.06626, 0), Vector(0.744545, 0.055935, 0), Vector(0.730959, 0.035304, 0), Vector(0.705929, 0.007613, 0), Vector(0.677295, -0.016948, 0), Vector(0.645491, -0.038191, 0), Vector(0.611303, -0.055624, 0), Vector(0.575324, -0.068292, 0), Vector(0.537866, -0.076114, 0), Vector(0.512372, -0.076975, 0), Vector(0.499481, -0.07741, 0)], [4, 1, 1, 1, 1, 1, 1, 1, 4], [0, 0.978840568, 1.956103883, 2.947027447, 3.962820877, 4.980997961, 5.980964245, 6.979013046, 8], False, 3, [1, 1, 1, 1, 1, 1, 1, 1, 1, 1, 1], False),  # 16
    Part.BSplineCurve([Vector(0.752005, 0.039377, 0), Vector(0.751938, 0.043123, 0), Vector(0.751778, 0.052085, 0), Vector(0.751503, 0.061045, 0), Vector(0.751344, 0.06626, 0)], [4, 1, 4], [0, 0.835966126, 2], False, 3, [1, 1, 1, 1, 1], False),  # 17
    Part.BSplineCurve([Vector(0.512481, -0.345359, 0), Vector(0.52198, -0.345017, 0), Vector(0.540676, -0.344344, 0), Vector(0.567934, -0.339125, 0), Vector(0.593856, -0.330764, 0), Vector(0.617991, -0.318768, 0), Vector(0.640251, -0.30417, 0), Vector(0.659694, -0.286824, 0), Vector(0.67658, -0.267477, 0), Vector(0.690449, -0.245186, 0), Vector(0.702286, -0.219727, 0), Vector(0.713471, -0.190774, 0), Vector(0.724052, -0.15783, 0), Vector(0.733455, -0.121314, 0), Vector(0.741875, -0.08256, 0), Vector(0.747785, -0.042446, 0), Vector(0.75142, -0.001751, 0), Vector(0.751809, 0.025634, 0), Vector(0.752005, 0.039377, 0)], [4, 1, 1, 1, 1, 1, 1, 1, 1, 1, 1, 1, 1, 1, 1, 1, 4], [0, 0.897794352, 1.766998465, 2.614902619, 3.466100941, 4.308008728, 5.124841802, 5.922729683, 6.728261092, 7.598214292, 8.574707161, 9.662086263, 10.868425066, 12.139522319, 13.41071447, 14.70057738, 16], False, 3, [1, 1, 1, 1, 1, 1, 1, 1, 1, 1, 1, 1, 1, 1, 1, 1, 1, 1, 1], False),  # 18
    Part.BSplineCurve([Vector(0.342369, -0.176128, 0), Vector(0.343644, -0.183354, 0), Vector(0.346109, -0.197322, 0), Vector(0.351671, -0.217228, 0), Vector(0.357312, -0.235789, 0), Vector(0.364593, -0.25259, 0), Vector(0.372177, -0.268089, 0), Vector(0.380765, -0.28213, 0), Vector(0.390511, -0.294431, 0), Vector(0.404273, -0.308846, 0), Vector(0.4238, -0.323887, 0), Vector(0.450866, -0.336072, 0), Vector(0.480642, -0.344264, 0), Vector(0.501626, -0.344986, 0), Vector(0.512481, -0.345359, 0)], [4, 1, 1, 1, 1, 1, 1, 1, 1, 1, 1, 1, 4], [0, 0.994516507, 1.922484754, 2.80151264, 3.623050913, 4.402748861, 5.140924173, 5.850441436, 6.526872911, 7.841975818, 9.161260782, 10.53140107, 12], False, 3, [1, 1, 1, 1, 1, 1, 1, 1, 1, 1, 1, 1, 1, 1, 1], False),  # 19
    Part.BSplineCurve([Vector(0.542449, 0.049513, 0), Vector(0.549877, 0.049662, 0), Vector(0.564496, 0.049956, 0), Vector(0.585911, 0.052867, 0), Vector(0.60626, 0.057742, 0), Vector(0.625633, 0.064371, 0), Vector(0.644, 0.072951, 0), Vector(0.661236, 0.083699, 0), Vector(0.677675, 0.096015, 0), Vector(0.692835, 0.110404, 0), Vector(0.706691, 0.126337, 0), Vector(0.718674, 0.143969, 0), Vector(0.728907, 0.162981, 0), Vector(0.736961, 0.183598, 0), Vector(0.743412, 0.205566, 0), Vector(0.747953, 0.229025, 0), Vector(0.750928, 0.253923, 0), Vector(0.751203, 0.271032, 0), Vector(0.751344, 0.279781, 0)], [4, 1, 1, 1, 1, 1, 1, 1, 1, 1, 1, 1, 1, 1, 1, 1, 4], [0, 1.017004716, 2.00169281, 2.953445817, 3.879374072, 4.80207141, 5.723561102, 6.657273834, 7.611045633, 8.581233951, 9.544037932, 10.525327521, 11.53237926, 12.57032081, 13.657564536, 14.802009319, 16], False, 3, [1, 1, 1, 1, 1, 1, 1, 1, 1, 1, 1, 1, 1, 1, 1, 1, 1, 1, 1], False),  # 20
    Part.BSplineCurve([Vector(0.328267, 0.269204, 0), Vector(0.3284, 0.26126, 0), Vector(0.328661, 0.245684, 0), Vector(0.331772, 0.222953, 0), Vector(0.33592, 0.201258, 0), Vector(0.342535, 0.180821, 0), Vector(0.350503, 0.161345, 0), Vector(0.360859, 0.143278, 0), Vector(0.372519, 0.126078, 0), Vector(0.386181, 0.110323, 0), Vector(0.401284, 0.09603, 0), Vector(0.41778, 0.083573, 0), Vector(0.43546, 0.072909, 0), Vector(0.454489, 0.064326, 0), Vector(0.474752, 0.057716, 0), Vector(0.496204, 0.052849, 0), Vector(0.518939, 0.049951, 0), Vector(0.534508, 0.049661, 0), Vector(0.542449, 0.049513, 0)], [4, 1, 1, 1, 1, 1, 1, 1, 1, 1, 1, 1, 1, 1, 1, 1, 4], [0, 1.102204012, 2.160993585, 3.181057555, 4.164839289, 5.138418409, 6.097303793, 7.050641095, 8.019669129, 8.986440483, 9.932879371, 10.884360123, 11.847412593, 12.824617322, 13.839006415, 14.897795988, 16], False, 3, [1, 1, 1, 1, 1, 1, 1, 1, 1, 1, 1, 1, 1, 1, 1, 1, 1, 1, 1], False),  # 21
    Part.BSplineCurve([Vector(0.545975, 0.514897, 0), Vector(0.538255, 0.514663, 0), Vector(0.523046, 0.514203, 0), Vector(0.500755, 0.511235, 0), Vector(0.479615, 0.505552, 0), Vector(0.459483, 0.498014, 0), Vector(0.440135, 0.48869, 0), Vector(0.422275, 0.476472, 0), Vector(0.405155, 0.462626, 0), Vector(0.389461, 0.446563, 0), Vector(0.375125, 0.428952, 0), Vector(0.362493, 0.409958, 0), Vector(0.351856, 0.389571, 0), Vector(0.343353, 0.367877, 0), Vector(0.336404, 0.345065, 0), Vector(0.33163, 0.320931, 0), Vector(0.328693, 0.2955, 0), Vector(0.328411, 0.2781, 0), Vector(0.328267, 0.269204, 0)], [4, 1, 1, 1, 1, 1, 1, 1, 1, 1, 1, 1, 1, 1, 1, 1, 4], [0, 1.007165334, 1.984118292, 2.925321257, 3.856078893, 4.785899085, 5.718627206, 6.671847665, 7.654235469, 8.641842333, 9.630378272, 10.624608936, 11.635186472, 12.665777387, 13.731187195, 14.840042241, 16], False, 3, [1, 1, 1, 1, 1, 1, 1, 1, 1, 1, 1, 1, 1, 1, 1, 1, 1, 1, 1], False),  # 22
    Part.BSplineCurve([Vector(0.751344, 0.279781, 0), Vector(0.751185, 0.288602, 0), Vector(0.750876, 0.305772, 0), Vector(0.748171, 0.330822, 0), Vector(0.743819, 0.354412, 0), Vector(0.737711, 0.376678, 0), Vector(0.729416, 0.397382, 0), Vector(0.719806, 0.417009, 0), Vector(0.708054, 0.435015, 0), Vector(0.694795, 0.451642, 0), Vector(0.680189, 0.466515, 0), Vector(0.664284, 0.479482, 0), Vector(0.647377, 0.490598, 0), Vector(0.629062, 0.499339, 0), Vector(0.609943, 0.50654, 0), Vector(0.589559, 0.511247, 0), Vector(0.568192, 0.514545, 0), Vector(0.55348, 0.514778, 0), Vector(0.545975, 0.514897, 0)], [4, 1, 1, 1, 1, 1, 1, 1, 1, 1, 1, 1, 1, 1, 1, 1, 4], [0, 1.20361398, 2.342757417, 3.433960756, 4.474970456, 5.487648377, 6.473933575, 7.452701285, 8.415527761, 9.372491588, 10.291530068, 11.211879743, 12.12647906, 13.055739058, 13.994253148, 14.97671008, 16], False, 3, [1, 1, 1, 1, 1, 1, 1, 1, 1, 1, 1, 1, 1, 1, 1, 1, 1, 1, 1], False),  # 23
], False)
sketch4.addConstraint([
    Sketcher.Constraint("Block", 1),
    Sketcher.Constraint("Block", 2),
    Sketcher.Constraint("Block", 3),
    Sketcher.Constraint("Block", 4),
    Sketcher.Constraint("Block", 6),
    Sketcher.Constraint("Block", 7),
    Sketcher.Constraint("Block", 8),
    Sketcher.Constraint("Block", 9),
    Sketcher.Constraint("Block", 11),
    Sketcher.Constraint("Block", 12),
    Sketcher.Constraint("Block", 13),
    Sketcher.Constraint("Block", 14),
    Sketcher.Constraint("Block", 15),
    Sketcher.Constraint("Block", 16),
    Sketcher.Constraint("Block", 17),
    Sketcher.Constraint("Block", 18),
    Sketcher.Constraint("Block", 19),
    Sketcher.Constraint("Block", 20),
    Sketcher.Constraint("Block", 21),
    Sketcher.Constraint("Block", 22),
    Sketcher.Constraint("Block", 23),
    Sketcher.Constraint("Coincident", 0, 2, 1, 2),
    Sketcher.Constraint("Coincident", 4, 1, 5, 1),
    Sketcher.Constraint("Coincident", 5, 2, 6, 2),
    Sketcher.Constraint("Coincident", 9, 1, 0, 1),
    Sketcher.Constraint("Coincident", 10, 2, 11, 2),
    Sketcher.Constraint("Coincident", 19, 1, 10, 1),
])
pad3 = body.newObject("PartDesign::Pad", "Pad002")
pad3.Profile = sketch4
pad3.Length = 0.01

# Sketch on XY plane
sketch5 = body.newObject("Sketcher::SketchObject", "Sketch004")
sketch5.AttachmentSupport = (doc.getObject("XY_Plane"), [""])
sketch5.MapMode = "FlatFace"
sketch5.AttachmentOffset = App.Placement(Vector(0, 0, 0.05), App.Rotation())
sketch5.addGeometry([
    Part.LineSegment(Vector(1.62, 0.4, 0), Vector(1.25, 0.4, 0)),  # 0
    Part.ArcOfCircle(Part.Circle(Vector(1.25, 0, 0), Vector(0, 0, 1), 0.4), math.radians(90), math.radians(270)),  # 1
    Part.LineSegment(Vector(1.25, -0.4, 0), Vector(1.62, -0.4, 0)),  # 2
    Part.ArcOfCircle(Part.Circle(Vector(1.62, -0.65, 0), Vector(0, 0, 1), 0.25), math.radians(-22), math.radians(90)),  # 3
    Part.ArcOfCircle(Part.Circle(Vector(0, 0, 0), Vector(0, 0, 1), 2), math.radians(-158), math.radians(-22)),  # 4
    Part.ArcOfCircle(Part.Circle(Vector(-1.62, -0.65, 0), Vector(0, 0, 1), 0.25), math.radians(90), math.radians(202)),  # 5
    Part.LineSegment(Vector(-1.62, -0.4, 0), Vector(-1.25, -0.4, 0)),  # 6
    Part.ArcOfCircle(Part.Circle(Vector(-1.25, 0, 0), Vector(0, 0, 1), 0.4), math.radians(-90), math.radians(90)),  # 7
    Part.LineSegment(Vector(-1.25, 0.4, 0), Vector(-1.62, 0.4, 0)),  # 8
    Part.ArcOfCircle(Part.Circle(Vector(-1.62, 0.65, 0), Vector(0, 0, 1), 0.25), math.radians(158), math.radians(270)),  # 9
    Part.ArcOfCircle(Part.Circle(Vector(0, 0, 0), Vector(0, 0, 1), 2), math.radians(22), math.radians(158)),  # 10
    Part.ArcOfCircle(Part.Circle(Vector(1.62, 0.65, 0), Vector(0, 0, 1), 0.25), math.radians(-90), math.radians(22)),  # 11
], False)
sketch5.addConstraint([
    Sketcher.Constraint("Tangent", 0, 2, 1, 1),
    Sketcher.Constraint("Tangent", 1, 2, 2, 1),
    Sketcher.Constraint("Tangent", 2, 2, 3, 2),
    Sketcher.Constraint("Tangent", 3, 1, 4, 2),
    Sketcher.Constraint("Tangent", 4, 1, 5, 2),
    Sketcher.Constraint("Tangent", 5, 1, 6, 1),
    Sketcher.Constraint("Tangent", 6, 2, 7, 1),
    Sketcher.Constraint("Tangent", 7, 2, 8, 1),
    Sketcher.Constraint("Tangent", 8, 2, 9, 2),
    Sketcher.Constraint("Tangent", 9, 1, 10, 2),
    Sketcher.Constraint("Tangent", 10, 1, 11, 2),
    Sketcher.Constraint("Tangent", 11, 1, 0, 1),
    Sketcher.Constraint("Horizontal", 0),
    Sketcher.Constraint("Horizontal", 2),
    Sketcher.Constraint("Horizontal", 6),
    Sketcher.Constraint("Horizontal", 8),
    Sketcher.Constraint("Coincident", 4, 3, -1, 1),
    Sketcher.Constraint("Coincident", 10, 3, -1, 1),
    Sketcher.Constraint("Equal", 3, 5),
    Sketcher.Constraint("Equal", 1, 7),
    Sketcher.Constraint("Equal", 5, 9),
    Sketcher.Constraint("Equal", 4, 10),
    Sketcher.Constraint("Equal", 9, 11),
    Sketcher.Constraint("Symmetric", 1, 3, 7, 3, -1, 1),
    Sketcher.Constraint("PointOnObject", 1, 3, -1),
    Sketcher.Constraint("Radius", 4, Q("2 mm")),
    Sketcher.Constraint("Radius", 1, Q("0.4 mm")),
    Sketcher.Constraint("Radius", 3, Q("0.25 mm")),
    Sketcher.Constraint("DistanceX", 7, 3, 1, 3, Q("2.5 mm")),
])
pad4 = body.newObject("PartDesign::Pad", "Pad003")
pad4.Profile = sketch5
pad4.Length = 0.05
pad4.Reversed = True

doc.recompute()
